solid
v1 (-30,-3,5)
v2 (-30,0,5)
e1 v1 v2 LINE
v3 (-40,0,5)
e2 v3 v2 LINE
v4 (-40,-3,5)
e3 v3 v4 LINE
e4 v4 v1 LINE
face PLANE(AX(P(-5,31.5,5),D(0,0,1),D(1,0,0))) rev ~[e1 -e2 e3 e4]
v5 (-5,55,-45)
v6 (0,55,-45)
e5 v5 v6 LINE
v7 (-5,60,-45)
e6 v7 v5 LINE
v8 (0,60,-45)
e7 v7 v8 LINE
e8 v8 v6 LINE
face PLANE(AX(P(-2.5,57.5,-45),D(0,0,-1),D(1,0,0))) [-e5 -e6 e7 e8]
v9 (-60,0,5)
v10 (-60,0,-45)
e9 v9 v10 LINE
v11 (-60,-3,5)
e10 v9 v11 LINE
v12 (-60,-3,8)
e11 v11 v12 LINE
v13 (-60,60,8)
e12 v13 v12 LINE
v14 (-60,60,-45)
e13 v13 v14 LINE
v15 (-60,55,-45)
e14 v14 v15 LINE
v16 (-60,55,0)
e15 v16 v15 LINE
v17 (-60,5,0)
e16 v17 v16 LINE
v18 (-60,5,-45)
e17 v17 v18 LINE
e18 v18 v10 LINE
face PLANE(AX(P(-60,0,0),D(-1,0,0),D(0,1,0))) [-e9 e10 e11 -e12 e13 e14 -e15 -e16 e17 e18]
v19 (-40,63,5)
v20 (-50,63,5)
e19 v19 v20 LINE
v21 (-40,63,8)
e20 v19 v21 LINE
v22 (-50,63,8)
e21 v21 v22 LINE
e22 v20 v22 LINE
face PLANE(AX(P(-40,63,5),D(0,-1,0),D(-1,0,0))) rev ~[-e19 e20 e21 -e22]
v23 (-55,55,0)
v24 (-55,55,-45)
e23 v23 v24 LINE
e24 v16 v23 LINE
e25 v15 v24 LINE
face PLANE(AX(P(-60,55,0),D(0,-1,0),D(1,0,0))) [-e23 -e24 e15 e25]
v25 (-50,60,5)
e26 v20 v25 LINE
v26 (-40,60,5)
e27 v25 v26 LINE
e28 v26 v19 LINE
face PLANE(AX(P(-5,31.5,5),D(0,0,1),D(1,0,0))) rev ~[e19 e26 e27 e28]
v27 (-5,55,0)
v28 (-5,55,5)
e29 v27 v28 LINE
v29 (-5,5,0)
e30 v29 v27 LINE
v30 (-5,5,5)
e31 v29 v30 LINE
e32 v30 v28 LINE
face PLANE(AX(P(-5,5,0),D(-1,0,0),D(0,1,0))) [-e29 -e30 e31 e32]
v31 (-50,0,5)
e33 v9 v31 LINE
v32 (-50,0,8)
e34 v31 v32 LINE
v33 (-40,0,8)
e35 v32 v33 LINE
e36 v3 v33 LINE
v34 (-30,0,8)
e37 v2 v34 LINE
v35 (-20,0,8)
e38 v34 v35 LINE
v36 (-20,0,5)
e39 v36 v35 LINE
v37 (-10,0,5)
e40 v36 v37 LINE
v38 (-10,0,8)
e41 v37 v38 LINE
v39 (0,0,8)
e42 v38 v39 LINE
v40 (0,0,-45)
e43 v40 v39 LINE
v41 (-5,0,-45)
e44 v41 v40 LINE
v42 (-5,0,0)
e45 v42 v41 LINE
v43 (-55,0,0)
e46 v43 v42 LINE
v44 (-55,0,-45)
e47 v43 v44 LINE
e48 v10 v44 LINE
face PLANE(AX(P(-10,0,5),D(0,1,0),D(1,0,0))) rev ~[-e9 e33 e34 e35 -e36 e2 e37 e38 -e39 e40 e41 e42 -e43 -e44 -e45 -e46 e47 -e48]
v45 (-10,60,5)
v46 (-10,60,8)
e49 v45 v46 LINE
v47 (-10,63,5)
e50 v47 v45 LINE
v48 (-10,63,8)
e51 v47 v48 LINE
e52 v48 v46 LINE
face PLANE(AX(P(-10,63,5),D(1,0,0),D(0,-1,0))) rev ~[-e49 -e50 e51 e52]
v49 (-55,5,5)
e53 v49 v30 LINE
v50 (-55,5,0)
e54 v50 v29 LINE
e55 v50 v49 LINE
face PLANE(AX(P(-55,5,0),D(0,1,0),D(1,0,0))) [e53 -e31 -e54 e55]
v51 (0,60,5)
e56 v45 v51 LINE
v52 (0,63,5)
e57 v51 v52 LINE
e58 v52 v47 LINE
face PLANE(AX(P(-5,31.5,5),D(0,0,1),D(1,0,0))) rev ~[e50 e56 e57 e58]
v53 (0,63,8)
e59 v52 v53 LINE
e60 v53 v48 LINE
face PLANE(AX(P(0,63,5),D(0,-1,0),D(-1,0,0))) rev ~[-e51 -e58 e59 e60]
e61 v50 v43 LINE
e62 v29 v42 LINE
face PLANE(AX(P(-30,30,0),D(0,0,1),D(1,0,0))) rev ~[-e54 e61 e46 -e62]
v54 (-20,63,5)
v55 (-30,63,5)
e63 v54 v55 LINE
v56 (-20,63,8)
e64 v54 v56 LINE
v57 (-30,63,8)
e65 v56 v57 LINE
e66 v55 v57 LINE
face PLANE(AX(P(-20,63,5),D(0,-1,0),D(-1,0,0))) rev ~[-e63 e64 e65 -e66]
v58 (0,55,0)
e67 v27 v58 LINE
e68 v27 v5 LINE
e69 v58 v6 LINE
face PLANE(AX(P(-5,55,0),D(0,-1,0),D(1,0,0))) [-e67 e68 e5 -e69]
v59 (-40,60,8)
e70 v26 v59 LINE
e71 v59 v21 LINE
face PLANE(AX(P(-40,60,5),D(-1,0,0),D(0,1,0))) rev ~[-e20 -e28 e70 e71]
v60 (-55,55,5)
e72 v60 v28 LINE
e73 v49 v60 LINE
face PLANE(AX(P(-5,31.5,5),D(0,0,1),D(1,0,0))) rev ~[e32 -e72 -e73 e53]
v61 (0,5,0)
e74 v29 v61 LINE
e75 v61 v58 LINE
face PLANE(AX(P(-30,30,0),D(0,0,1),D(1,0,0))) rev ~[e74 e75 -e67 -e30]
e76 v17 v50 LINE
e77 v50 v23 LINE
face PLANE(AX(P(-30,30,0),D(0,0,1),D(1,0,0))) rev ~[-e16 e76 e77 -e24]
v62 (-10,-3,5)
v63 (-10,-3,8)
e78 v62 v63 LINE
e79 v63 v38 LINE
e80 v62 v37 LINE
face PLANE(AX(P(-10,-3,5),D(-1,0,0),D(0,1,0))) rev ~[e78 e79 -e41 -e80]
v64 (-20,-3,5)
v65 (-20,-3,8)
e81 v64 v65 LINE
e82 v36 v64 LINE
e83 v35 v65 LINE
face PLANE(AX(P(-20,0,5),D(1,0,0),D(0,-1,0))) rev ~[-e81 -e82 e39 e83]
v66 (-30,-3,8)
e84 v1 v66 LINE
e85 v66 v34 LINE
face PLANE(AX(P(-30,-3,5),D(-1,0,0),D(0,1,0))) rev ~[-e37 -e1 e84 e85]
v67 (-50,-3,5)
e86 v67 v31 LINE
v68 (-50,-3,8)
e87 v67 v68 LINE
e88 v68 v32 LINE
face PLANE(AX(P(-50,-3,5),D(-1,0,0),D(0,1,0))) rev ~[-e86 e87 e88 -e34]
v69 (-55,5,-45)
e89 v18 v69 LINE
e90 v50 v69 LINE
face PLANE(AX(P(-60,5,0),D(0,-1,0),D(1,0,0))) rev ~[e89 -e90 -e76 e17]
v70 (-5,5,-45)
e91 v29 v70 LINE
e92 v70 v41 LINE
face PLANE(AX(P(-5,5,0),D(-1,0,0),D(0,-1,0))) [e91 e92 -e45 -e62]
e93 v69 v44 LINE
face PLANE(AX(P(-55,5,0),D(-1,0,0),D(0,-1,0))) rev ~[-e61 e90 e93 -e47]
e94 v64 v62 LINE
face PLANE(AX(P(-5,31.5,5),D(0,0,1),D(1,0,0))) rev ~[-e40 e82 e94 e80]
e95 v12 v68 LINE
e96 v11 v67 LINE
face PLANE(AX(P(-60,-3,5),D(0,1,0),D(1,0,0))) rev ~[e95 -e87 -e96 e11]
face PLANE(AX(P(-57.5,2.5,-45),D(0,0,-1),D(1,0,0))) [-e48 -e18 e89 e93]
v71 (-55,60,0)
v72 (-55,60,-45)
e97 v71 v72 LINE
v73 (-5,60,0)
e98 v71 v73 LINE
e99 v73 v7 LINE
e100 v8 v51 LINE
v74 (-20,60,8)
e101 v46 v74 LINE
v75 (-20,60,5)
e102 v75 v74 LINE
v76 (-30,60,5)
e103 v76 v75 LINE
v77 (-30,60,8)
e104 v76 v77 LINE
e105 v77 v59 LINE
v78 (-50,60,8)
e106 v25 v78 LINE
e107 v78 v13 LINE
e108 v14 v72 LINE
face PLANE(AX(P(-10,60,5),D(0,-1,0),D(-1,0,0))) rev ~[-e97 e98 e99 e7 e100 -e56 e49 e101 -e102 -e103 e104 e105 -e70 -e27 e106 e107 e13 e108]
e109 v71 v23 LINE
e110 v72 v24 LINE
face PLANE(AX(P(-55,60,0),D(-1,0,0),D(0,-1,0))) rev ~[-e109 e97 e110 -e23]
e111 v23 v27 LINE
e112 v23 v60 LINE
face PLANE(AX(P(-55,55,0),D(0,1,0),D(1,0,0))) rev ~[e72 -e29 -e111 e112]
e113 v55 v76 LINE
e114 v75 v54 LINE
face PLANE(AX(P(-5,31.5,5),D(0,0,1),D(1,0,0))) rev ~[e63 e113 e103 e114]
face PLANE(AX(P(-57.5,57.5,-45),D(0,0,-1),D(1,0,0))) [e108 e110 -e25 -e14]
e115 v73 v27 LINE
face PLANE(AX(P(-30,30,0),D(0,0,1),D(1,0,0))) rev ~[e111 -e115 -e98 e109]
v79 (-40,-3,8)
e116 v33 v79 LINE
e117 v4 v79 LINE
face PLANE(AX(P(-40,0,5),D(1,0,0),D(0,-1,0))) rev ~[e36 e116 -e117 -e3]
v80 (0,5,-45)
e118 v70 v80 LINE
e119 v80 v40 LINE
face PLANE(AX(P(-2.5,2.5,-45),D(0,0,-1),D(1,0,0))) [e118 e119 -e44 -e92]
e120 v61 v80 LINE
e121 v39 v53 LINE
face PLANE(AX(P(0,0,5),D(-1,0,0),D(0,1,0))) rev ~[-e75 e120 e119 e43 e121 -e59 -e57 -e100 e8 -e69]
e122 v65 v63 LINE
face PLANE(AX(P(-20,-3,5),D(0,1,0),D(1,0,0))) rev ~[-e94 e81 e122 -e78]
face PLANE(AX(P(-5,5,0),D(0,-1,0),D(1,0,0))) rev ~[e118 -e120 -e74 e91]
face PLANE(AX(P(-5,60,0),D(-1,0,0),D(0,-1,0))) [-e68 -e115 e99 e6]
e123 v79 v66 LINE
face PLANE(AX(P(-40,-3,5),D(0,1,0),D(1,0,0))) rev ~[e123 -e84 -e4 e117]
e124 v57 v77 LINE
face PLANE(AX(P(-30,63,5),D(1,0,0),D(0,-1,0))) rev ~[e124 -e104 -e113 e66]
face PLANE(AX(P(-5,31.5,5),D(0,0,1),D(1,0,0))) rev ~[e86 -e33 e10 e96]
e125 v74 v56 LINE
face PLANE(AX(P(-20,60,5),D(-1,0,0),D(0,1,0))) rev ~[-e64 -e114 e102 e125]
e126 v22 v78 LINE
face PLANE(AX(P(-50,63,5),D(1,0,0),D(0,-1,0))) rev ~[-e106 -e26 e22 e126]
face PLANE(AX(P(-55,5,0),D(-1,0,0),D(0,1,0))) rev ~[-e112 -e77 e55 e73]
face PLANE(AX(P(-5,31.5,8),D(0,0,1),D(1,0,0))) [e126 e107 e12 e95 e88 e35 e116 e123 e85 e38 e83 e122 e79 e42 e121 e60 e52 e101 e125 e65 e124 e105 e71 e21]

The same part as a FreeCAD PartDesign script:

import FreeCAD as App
import Part
import Sketcher
Q = App.Units.Quantity


def add_polygon(sketch, points):
    """Adds a closed chain of lines whose ends are joined by coincident constraints."""
    first, n = sketch.GeometryCount, len(points)
    for a, b in zip(points, points[1:] + points[:1]):
        sketch.addGeometry(Part.LineSegment(App.Vector(*a, 0), App.Vector(*b, 0)), False)
    for i in range(n):
        sketch.addConstraint(Sketcher.Constraint("Coincident", first + i, 2, first + (i + 1) % n, 1))

doc = App.newDocument("Part")
params = doc.addObject("Spreadsheet::Sheet", "Params")
for row, (alias, value) in enumerate([
    ("sketch1_width", "60 mm"),
    ("sketch1_width2", "50 mm"),
    ("pad1_length", "5 mm"),
    ("sketch2_width", "5 mm"),
    ("pad2_length", "45 mm"),
    ("sketch3_width", "10 mm"),
    ("sketch3_height", "63 mm"),
    ("sketch3_height2", "3 mm"),
    ("pad3_length", "3 mm"),
], start=1):
    params.set(f"A{row}", alias)
    params.set(f"B{row}", "=" + value)
    params.setAlias(f"B{row}", alias)

body = doc.addObject("PartDesign::Body", "Body")

sketch1 = doc.addObject("Sketcher::SketchObject", "Sketch")
body.addObject(sketch1)
sketch1.AttachmentSupport = (doc.XY_Plane, [""])
sketch1.MapMode = "FlatFace"
add_polygon(sketch1, [(-60, 60), (-60, 0), (0, 0), (0, 60)])
add_polygon(sketch1, [(-5, 5), (-55, 5), (-55, 55), (-5, 55)])
sketch1.addConstraint([
    Sketcher.Constraint("Vertical", 0),
    Sketcher.Constraint("Horizontal", 1),
    Sketcher.Constraint("Vertical", 2),
    Sketcher.Constraint("Horizontal", 3),
    Sketcher.Constraint("Horizontal", 4),
    Sketcher.Constraint("Vertical", 5),
    Sketcher.Constraint("Horizontal", 6),
    Sketcher.Constraint("Vertical", 7),
    Sketcher.Constraint("Coincident", 1, 2, -1, 1),
    Sketcher.Constraint("Equal", 3, 0),
    Sketcher.Constraint("Equal", 6, 5),
    Sketcher.Constraint("DistanceX", 1, 1, 1, 2, Q("60 mm")),
    Sketcher.Constraint("DistanceX", 4, 2, 4, 1, Q("50 mm")),
    Sketcher.Constraint("DistanceX", 4, 2, -1, 1, Q("55 mm")),
    Sketcher.Constraint("DistanceY", -1, 1, 4, 2, Q("5 mm")),
])
sketch1.setExpression("Constraints[19]", "Params.sketch1_width")
sketch1.setExpression("Constraints[20]", "Params.sketch1_width2")
pad1 = doc.addObject("PartDesign::Pad", "Pad")
body.addObject(pad1)
pad1.Profile = sketch1
pad1.setExpression("Length", "Params.pad1_length")

sketch2 = doc.addObject("Sketcher::SketchObject", "Sketch001")
body.addObject(sketch2)
sketch2.AttachmentSupport = (doc.XY_Plane, [""])
sketch2.MapMode = "FlatFace"
add_polygon(sketch2, [(-5, 0), (-5, 5), (0, 5), (0, 0)])
add_polygon(sketch2, [(-60, 0), (-60, 5), (-55, 5), (-55, 0)])
add_polygon(sketch2, [(-5, 55), (-5, 60), (0, 60), (0, 55)])
add_polygon(sketch2, [(-60, 55), (-60, 60), (-55, 60), (-55, 55)])
sketch2.addConstraint([
    Sketcher.Constraint("Vertical", 0),
    Sketcher.Constraint("Horizontal", 1),
    Sketcher.Constraint("Vertical", 2),
    Sketcher.Constraint("Horizontal", 3),
    Sketcher.Constraint("Vertical", 4),
    Sketcher.Constraint("Horizontal", 5),
    Sketcher.Constraint("Vertical", 6),
    Sketcher.Constraint("Horizontal", 7),
    Sketcher.Constraint("Vertical", 8),
    Sketcher.Constraint("Horizontal", 9),
    Sketcher.Constraint("Vertical", 10),
    Sketcher.Constraint("Horizontal", 11),
    Sketcher.Constraint("Vertical", 12),
    Sketcher.Constraint("Horizontal", 13),
    Sketcher.Constraint("Vertical", 14),
    Sketcher.Constraint("Horizontal", 15),
    Sketcher.Constraint("Coincident", 2, 2, -1, 1),
    Sketcher.Constraint("PointOnObject", 6, 2, -1),
    Sketcher.Constraint("PointOnObject", 9, 2, -2),
    Sketcher.Constraint("Horizontal", 1, 2, 4, 2),
    Sketcher.Constraint("Horizontal", 9, 2, 12, 2),
    Sketcher.Constraint("Horizontal", 11, 2, 14, 2),
    Sketcher.Constraint("Vertical", 3, 2, 8, 2),
    Sketcher.Constraint("Vertical", 7, 2, 12, 2),
    Sketcher.Constraint("Vertical", 6, 2, 13, 2),
    Sketcher.Constraint("Equal", 3, 5),
    Sketcher.Constraint("Equal", 15, 0),
    Sketcher.Constraint("Equal", 6, 8),
    Sketcher.Constraint("DistanceX", 1, 1, 1, 2, Q("5 mm")),
    Sketcher.Constraint("DistanceX", 4, 2, -1, 1, Q("60 mm")),
    Sketcher.Constraint("DistanceY", -1, 1, 8, 2, Q("60 mm")),
])
sketch2.setExpression("Constraints[44]", "Params.sketch2_width")
pad2 = doc.addObject("PartDesign::Pad", "Pad001")
body.addObject(pad2)
pad2.Profile = sketch2
pad2.setExpression("Length", "Params.pad2_length")
pad2.Reversed = True

sketch3 = doc.addObject("Sketcher::SketchObject", "Sketch002")
body.addObject(sketch3)
sketch3.AttachmentSupport = (doc.XY_Plane, [""])
sketch3.MapMode = "FlatFace"
sketch3.AttachmentOffset = App.Placement(App.Vector(0, 0, 5), App.Rotation())
add_polygon(sketch3, [(-10, 0), (0, 0), (0, 63), (-10, 63), (-10, 60), (-20, 60), (-20, 63), (-30, 63), (-30, 60), (-40, 60), (-40, 63), (-50, 63), (-50, 60), (-60, 60), (-60, -3), (-50, -3), (-50, 0), (-40, 0), (-40, -3), (-30, -3), (-30, 0), (-20, 0), (-20, -3), (-10, -3)])
sketch3.addConstraint([
    Sketcher.Constraint("Horizontal", 0),
    Sketcher.Constraint("Vertical", 1),
    Sketcher.Constraint("Horizontal", 2),
    Sketcher.Constraint("Vertical", 3),
    Sketcher.Constraint("Horizontal", 4),
    Sketcher.Constraint("Vertical", 5),
    Sketcher.Constraint("Horizontal", 6),
    Sketcher.Constraint("Vertical", 7),
    Sketcher.Constraint("Horizontal", 8),
    Sketcher.Constraint("Vertical", 9),
    Sketcher.Constraint("Horizontal", 10),
    Sketcher.Constraint("Vertical", 11),
    Sketcher.Constraint("Horizontal", 12),
    Sketcher.Constraint("Vertical", 13),
    Sketcher.Constraint("Horizontal", 14),
    Sketcher.Constraint("Vertical", 15),
    Sketcher.Constraint("Horizontal", 16),
    Sketcher.Constraint("Vertical", 17),
    Sketcher.Constraint("Horizontal", 18),
    Sketcher.Constraint("Vertical", 19),
    Sketcher.Constraint("Horizontal", 20),
    Sketcher.Constraint("Vertical", 21),
    Sketcher.Constraint("Horizontal", 22),
    Sketcher.Constraint("Vertical", 23),
    Sketcher.Constraint("Coincident", 0, 2, -1, 1),
    Sketcher.Constraint("PointOnObject", 15, 2, -1),
    Sketcher.Constraint("PointOnObject", 19, 2, -1),
    Sketcher.Constraint("Horizontal", 2, 2, 5, 2),
    Sketcher.Constraint("Horizontal", 4, 2, 7, 2),
    Sketcher.Constraint("Horizontal", 6, 2, 9, 2),
    Sketcher.Constraint("Horizontal", 8, 2, 11, 2),
    Sketcher.Constraint("Horizontal", 14, 2, 17, 2),
    Sketcher.Constraint("Horizontal", 18, 2, 21, 2),
    Sketcher.Constraint("Vertical", 11, 2, 14, 2),
    Sketcher.Constraint("Vertical", 9, 2, 16, 2),
    Sketcher.Constraint("Vertical", 7, 2, 18, 2),
    Sketcher.Constraint("Vertical", 5, 2, 20, 2),
    Sketcher.Constraint("Vertical", 3, 2, 22, 2),
    Sketcher.Constraint("Equal", 2, 4),
    Sketcher.Constraint("Equal", 4, 6),
    Sketcher.Constraint("Equal", 6, 8),
    Sketcher.Constraint("Equal", 8, 10),
    Sketcher.Constraint("Equal", 10, 12),
    Sketcher.Constraint("Equal", 1, 13),
    Sketcher.Constraint("DistanceX", 0, 1, 0, 2, Q("10 mm")),
    Sketcher.Constraint("DistanceY", 1, 1, 1, 2, Q("63 mm")),
    Sketcher.Constraint("DistanceY", 3, 2, 3, 1, Q("3 mm")),
])
sketch3.setExpression("Constraints[68]", "Params.sketch3_width")
sketch3.setExpression("Constraints[69]", "Params.sketch3_height")
sketch3.setExpression("Constraints[70]", "Params.sketch3_height2")
pad3 = doc.addObject("PartDesign::Pad", "Pad002")
body.addObject(pad3)
pad3.Profile = sketch3
pad3.setExpression("Length", "Params.pad3_length")

doc.recompute()
